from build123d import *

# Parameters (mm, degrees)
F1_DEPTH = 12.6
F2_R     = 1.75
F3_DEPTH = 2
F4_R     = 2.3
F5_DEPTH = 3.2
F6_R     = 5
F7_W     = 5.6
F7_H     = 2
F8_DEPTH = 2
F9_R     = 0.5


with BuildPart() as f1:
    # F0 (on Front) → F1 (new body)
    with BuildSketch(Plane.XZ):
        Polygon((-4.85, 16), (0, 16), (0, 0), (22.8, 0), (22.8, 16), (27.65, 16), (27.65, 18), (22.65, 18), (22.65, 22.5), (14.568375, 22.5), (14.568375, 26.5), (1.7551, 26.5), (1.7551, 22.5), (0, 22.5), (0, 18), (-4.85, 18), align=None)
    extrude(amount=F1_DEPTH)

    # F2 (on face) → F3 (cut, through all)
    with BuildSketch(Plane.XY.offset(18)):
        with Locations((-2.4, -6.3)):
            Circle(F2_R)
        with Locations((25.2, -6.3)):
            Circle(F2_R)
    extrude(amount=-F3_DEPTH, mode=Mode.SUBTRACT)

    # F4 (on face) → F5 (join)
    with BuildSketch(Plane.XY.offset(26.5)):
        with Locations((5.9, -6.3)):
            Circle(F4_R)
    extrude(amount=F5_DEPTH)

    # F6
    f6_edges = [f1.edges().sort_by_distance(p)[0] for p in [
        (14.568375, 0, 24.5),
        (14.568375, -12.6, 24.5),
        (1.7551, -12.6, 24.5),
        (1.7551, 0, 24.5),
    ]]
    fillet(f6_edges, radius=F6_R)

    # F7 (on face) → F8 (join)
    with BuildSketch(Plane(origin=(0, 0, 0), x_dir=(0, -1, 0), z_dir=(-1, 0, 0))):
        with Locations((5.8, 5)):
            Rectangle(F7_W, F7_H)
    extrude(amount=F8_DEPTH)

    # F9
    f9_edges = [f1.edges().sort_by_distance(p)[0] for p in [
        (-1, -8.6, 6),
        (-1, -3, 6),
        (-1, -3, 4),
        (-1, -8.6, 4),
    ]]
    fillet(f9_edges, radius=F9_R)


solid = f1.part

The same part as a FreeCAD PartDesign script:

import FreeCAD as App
import Part
import Sketcher

V = App.Vector
Q = App.Units.Quantity


def edges_at(feature, points):
    """Names of the edges that pass closest to the given points."""
    edges = feature.Shape.Edges
    near = lambda p: min(range(len(edges)), key=lambda i: edges[i].distToShape(Part.Vertex(*p))[0])
    return sorted({f"Edge{near(p) + 1}" for p in points})


def add_polygon(sketch, points):
    """Adds a closed chain of lines whose ends are joined by coincident constraints."""
    first, n = sketch.GeometryCount, len(points)
    for a, b in zip(points, points[1:] + points[:1]):
        sketch.addGeometry(Part.LineSegment(App.Vector(*a, 0), App.Vector(*b, 0)), False)
    for i in range(n):
        sketch.addConstraint(Sketcher.Constraint("Coincident", first + i, 2, first + (i + 1) % n, 1))

doc = App.newDocument("Part")
body = doc.addObject("PartDesign::Body", "Body")

sketch1 = body.newObject("Sketcher::SketchObject", "Sketch")
sketch1.AttachmentSupport = (doc.getObject("XZ_Plane"), [""])
sketch1.MapMode = "FlatFace"
add_polygon(sketch1, [(-4.8, 16), (0, 16), (0, 0), (22.8, 0), (22.8, 16), (27.6, 16), (27.6, 18), (22.6, 18), (22.6, 22.5), (14.6, 22.5), (14.6, 26.5), (1.8, 26.5), (1.8, 22.5), (0, 22.5), (0, 18), (-4.8, 18)])
sketch1.addConstraint(Sketcher.Constraint("Horizontal", 0))
sketch1.addConstraint(Sketcher.Constraint("Vertical", 1))
sketch1.addConstraint(Sketcher.Constraint("Horizontal", 2))
sketch1.addConstraint(Sketcher.Constraint("Vertical", 3))
sketch1.addConstraint(Sketcher.Constraint("Horizontal", 4))
sketch1.addConstraint(Sketcher.Constraint("Vertical", 5))
sketch1.addConstraint(Sketcher.Constraint("Horizontal", 6))
sketch1.addConstraint(Sketcher.Constraint("Vertical", 7))
sketch1.addConstraint(Sketcher.Constraint("Horizontal", 8))
sketch1.addConstraint(Sketcher.Constraint("Vertical", 9))
sketch1.addConstraint(Sketcher.Constraint("Horizontal", 10))
sketch1.addConstraint(Sketcher.Constraint("Vertical", 11))
sketch1.addConstraint(Sketcher.Constraint("Horizontal", 12))
sketch1.addConstraint(Sketcher.Constraint("Vertical", 13))
sketch1.addConstraint(Sketcher.Constraint("Horizontal", 14))
sketch1.addConstraint(Sketcher.Constraint("Vertical", 15))
sketch1.addConstraint(Sketcher.Constraint("Coincident", 1, 2, -1, 1))
sketch1.addConstraint(Sketcher.Constraint("PointOnObject", 12, 2, -2))
sketch1.addConstraint(Sketcher.Constraint("Horizontal", 0, 2, 3, 2))
sketch1.addConstraint(Sketcher.Constraint("Horizontal", 8, 2, 11, 2))
sketch1.addConstraint(Sketcher.Constraint("Horizontal", 6, 2, 13, 2))
sketch1.addConstraint(Sketcher.Constraint("Equal", 0, 4))
sketch1.addConstraint(Sketcher.Constraint("DistanceX", 6, 2, 6, 1, Q("5 mm")))
sketch1.addConstraint(Sketcher.Constraint("DistanceY", 1, 2, 1, 1, Q("16 mm")))
sketch1.addConstraint(Sketcher.Constraint("DistanceY", 5, 1, 5, 2, Q("2 mm")))
sketch1.addConstraint(Sketcher.Constraint("DistanceY", 9, 1, 9, 2, Q("4 mm")))
sketch1.addConstraint(Sketcher.Constraint("DistanceX", 2, 1, 2, 2, Q("22.8 mm")))
sketch1.addConstraint(Sketcher.Constraint("DistanceY", 7, 1, 7, 2, Q("4.5 mm")))
sketch1.addConstraint(Sketcher.Constraint("DistanceX", 0, 1, 0, 2, Q("4.85 mm")))
sketch1.addConstraint(Sketcher.Constraint("DistanceX", 12, 2, 12, 1, Q("1.7551 mm")))
sketch1.addConstraint(Sketcher.Constraint("DistanceX", 8, 2, 8, 1, Q("8.081625 mm")))
pad1 = body.newObject("PartDesign::Pad", "Pad")
pad1.Profile = sketch1
pad1.Length = 12.6

sketch2 = body.newObject("Sketcher::SketchObject", "Sketch001")
sketch2.AttachmentSupport = (doc.getObject("XY_Plane"), [""])
sketch2.MapMode = "FlatFace"
sketch2.AttachmentOffset = App.Placement(V(0, 0, 18), App.Rotation())
sketch2.addGeometry(Part.Circle(V(-2.4, -6.3, 0), V(0, 0, 1), 1.8), False)
sketch2.addGeometry(Part.Circle(V(25.2, -6.3, 0), V(0, 0, 1), 1.8), False)
sketch2.addConstraint(Sketcher.Constraint("Equal", 0, 1))
sketch2.addConstraint(Sketcher.Constraint("Horizontal", 0, 3, 1, 3))
sketch2.addConstraint(Sketcher.Constraint("Diameter", 0, Q("3.5 mm")))
sketch2.addConstraint(Sketcher.Constraint("DistanceX", 0, 3, -1, 1, Q("2.4 mm")))
sketch2.addConstraint(Sketcher.Constraint("DistanceY", 0, 3, -1, 1, Q("6.3 mm")))
sketch2.addConstraint(Sketcher.Constraint("DistanceX", -1, 1, 1, 3, Q("25.2 mm")))
pocket1 = body.newObject("PartDesign::Pocket", "Pocket")
pocket1.Profile = sketch2
pocket1.Type = "ThroughAll"

sketch3 = body.newObject("Sketcher::SketchObject", "Sketch002")
sketch3.AttachmentSupport = (doc.getObject("XY_Plane"), [""])
sketch3.MapMode = "FlatFace"
sketch3.AttachmentOffset = App.Placement(V(0, 0, 26.5), App.Rotation())
sketch3.addGeometry(Part.Circle(V(5.9, -6.3, 0), V(0, 0, 1), 2.3), False)
sketch3.addConstraint(Sketcher.Constraint("Diameter", 0, Q("4.6 mm")))
sketch3.addConstraint(Sketcher.Constraint("DistanceX", -1, 1, 0, 3, Q("5.9 mm")))
sketch3.addConstraint(Sketcher.Constraint("DistanceY", 0, 3, -1, 1, Q("6.3 mm")))
pad2 = body.newObject("PartDesign::Pad", "Pad001")
pad2.Profile = sketch3
pad2.Length = 3.2
doc.recompute()

fillet = body.newObject("PartDesign::Fillet", "Fillet")
fillet.Base = (pad2, edges_at(pad2, [
    (14.568, 0, 24.5),
    (14.568, -12.6, 24.5),
    (1.755, -12.6, 24.5),
    (1.755, 0, 24.5),
]))
fillet.Radius = 5

sketch4 = body.newObject("Sketcher::SketchObject", "Sketch003")
sketch4.AttachmentSupport = (doc.getObject("YZ_Plane"), [""])
sketch4.MapMode = "FlatFace"
add_polygon(sketch4, [(-3, 6), (-3, 4), (-8.6, 4), (-8.6, 6)])
sketch4.addConstraint(Sketcher.Constraint("Vertical", 0))
sketch4.addConstraint(Sketcher.Constraint("Horizontal", 1))
sketch4.addConstraint(Sketcher.Constraint("Vertical", 2))
sketch4.addConstraint(Sketcher.Constraint("Horizontal", 3))
sketch4.addConstraint(Sketcher.Constraint("DistanceY", 0, 2, 0, 1, Q("2 mm")))
sketch4.addConstraint(Sketcher.Constraint("DistanceX", 1, 2, 1, 1, Q("5.6 mm")))
sketch4.addConstraint(Sketcher.Constraint("DistanceX", 0, 2, -1, 1, Q("3 mm")))
sketch4.addConstraint(Sketcher.Constraint("DistanceY", -1, 1, 0, 2, Q("4 mm")))
pad3 = body.newObject("PartDesign::Pad", "Pad002")
pad3.Profile = sketch4
pad3.Length = 2
pad3.Reversed = True
doc.recompute()

fillet2 = body.newObject("PartDesign::Fillet", "Fillet001")
fillet2.Base = (pad3, edges_at(pad3, [
    (-1, -8.6, 6),
    (-1, -3, 6),
    (-1, -3, 4),
    (-1, -8.6, 4),
]))
fillet2.Radius = 0.5

doc.recompute()
